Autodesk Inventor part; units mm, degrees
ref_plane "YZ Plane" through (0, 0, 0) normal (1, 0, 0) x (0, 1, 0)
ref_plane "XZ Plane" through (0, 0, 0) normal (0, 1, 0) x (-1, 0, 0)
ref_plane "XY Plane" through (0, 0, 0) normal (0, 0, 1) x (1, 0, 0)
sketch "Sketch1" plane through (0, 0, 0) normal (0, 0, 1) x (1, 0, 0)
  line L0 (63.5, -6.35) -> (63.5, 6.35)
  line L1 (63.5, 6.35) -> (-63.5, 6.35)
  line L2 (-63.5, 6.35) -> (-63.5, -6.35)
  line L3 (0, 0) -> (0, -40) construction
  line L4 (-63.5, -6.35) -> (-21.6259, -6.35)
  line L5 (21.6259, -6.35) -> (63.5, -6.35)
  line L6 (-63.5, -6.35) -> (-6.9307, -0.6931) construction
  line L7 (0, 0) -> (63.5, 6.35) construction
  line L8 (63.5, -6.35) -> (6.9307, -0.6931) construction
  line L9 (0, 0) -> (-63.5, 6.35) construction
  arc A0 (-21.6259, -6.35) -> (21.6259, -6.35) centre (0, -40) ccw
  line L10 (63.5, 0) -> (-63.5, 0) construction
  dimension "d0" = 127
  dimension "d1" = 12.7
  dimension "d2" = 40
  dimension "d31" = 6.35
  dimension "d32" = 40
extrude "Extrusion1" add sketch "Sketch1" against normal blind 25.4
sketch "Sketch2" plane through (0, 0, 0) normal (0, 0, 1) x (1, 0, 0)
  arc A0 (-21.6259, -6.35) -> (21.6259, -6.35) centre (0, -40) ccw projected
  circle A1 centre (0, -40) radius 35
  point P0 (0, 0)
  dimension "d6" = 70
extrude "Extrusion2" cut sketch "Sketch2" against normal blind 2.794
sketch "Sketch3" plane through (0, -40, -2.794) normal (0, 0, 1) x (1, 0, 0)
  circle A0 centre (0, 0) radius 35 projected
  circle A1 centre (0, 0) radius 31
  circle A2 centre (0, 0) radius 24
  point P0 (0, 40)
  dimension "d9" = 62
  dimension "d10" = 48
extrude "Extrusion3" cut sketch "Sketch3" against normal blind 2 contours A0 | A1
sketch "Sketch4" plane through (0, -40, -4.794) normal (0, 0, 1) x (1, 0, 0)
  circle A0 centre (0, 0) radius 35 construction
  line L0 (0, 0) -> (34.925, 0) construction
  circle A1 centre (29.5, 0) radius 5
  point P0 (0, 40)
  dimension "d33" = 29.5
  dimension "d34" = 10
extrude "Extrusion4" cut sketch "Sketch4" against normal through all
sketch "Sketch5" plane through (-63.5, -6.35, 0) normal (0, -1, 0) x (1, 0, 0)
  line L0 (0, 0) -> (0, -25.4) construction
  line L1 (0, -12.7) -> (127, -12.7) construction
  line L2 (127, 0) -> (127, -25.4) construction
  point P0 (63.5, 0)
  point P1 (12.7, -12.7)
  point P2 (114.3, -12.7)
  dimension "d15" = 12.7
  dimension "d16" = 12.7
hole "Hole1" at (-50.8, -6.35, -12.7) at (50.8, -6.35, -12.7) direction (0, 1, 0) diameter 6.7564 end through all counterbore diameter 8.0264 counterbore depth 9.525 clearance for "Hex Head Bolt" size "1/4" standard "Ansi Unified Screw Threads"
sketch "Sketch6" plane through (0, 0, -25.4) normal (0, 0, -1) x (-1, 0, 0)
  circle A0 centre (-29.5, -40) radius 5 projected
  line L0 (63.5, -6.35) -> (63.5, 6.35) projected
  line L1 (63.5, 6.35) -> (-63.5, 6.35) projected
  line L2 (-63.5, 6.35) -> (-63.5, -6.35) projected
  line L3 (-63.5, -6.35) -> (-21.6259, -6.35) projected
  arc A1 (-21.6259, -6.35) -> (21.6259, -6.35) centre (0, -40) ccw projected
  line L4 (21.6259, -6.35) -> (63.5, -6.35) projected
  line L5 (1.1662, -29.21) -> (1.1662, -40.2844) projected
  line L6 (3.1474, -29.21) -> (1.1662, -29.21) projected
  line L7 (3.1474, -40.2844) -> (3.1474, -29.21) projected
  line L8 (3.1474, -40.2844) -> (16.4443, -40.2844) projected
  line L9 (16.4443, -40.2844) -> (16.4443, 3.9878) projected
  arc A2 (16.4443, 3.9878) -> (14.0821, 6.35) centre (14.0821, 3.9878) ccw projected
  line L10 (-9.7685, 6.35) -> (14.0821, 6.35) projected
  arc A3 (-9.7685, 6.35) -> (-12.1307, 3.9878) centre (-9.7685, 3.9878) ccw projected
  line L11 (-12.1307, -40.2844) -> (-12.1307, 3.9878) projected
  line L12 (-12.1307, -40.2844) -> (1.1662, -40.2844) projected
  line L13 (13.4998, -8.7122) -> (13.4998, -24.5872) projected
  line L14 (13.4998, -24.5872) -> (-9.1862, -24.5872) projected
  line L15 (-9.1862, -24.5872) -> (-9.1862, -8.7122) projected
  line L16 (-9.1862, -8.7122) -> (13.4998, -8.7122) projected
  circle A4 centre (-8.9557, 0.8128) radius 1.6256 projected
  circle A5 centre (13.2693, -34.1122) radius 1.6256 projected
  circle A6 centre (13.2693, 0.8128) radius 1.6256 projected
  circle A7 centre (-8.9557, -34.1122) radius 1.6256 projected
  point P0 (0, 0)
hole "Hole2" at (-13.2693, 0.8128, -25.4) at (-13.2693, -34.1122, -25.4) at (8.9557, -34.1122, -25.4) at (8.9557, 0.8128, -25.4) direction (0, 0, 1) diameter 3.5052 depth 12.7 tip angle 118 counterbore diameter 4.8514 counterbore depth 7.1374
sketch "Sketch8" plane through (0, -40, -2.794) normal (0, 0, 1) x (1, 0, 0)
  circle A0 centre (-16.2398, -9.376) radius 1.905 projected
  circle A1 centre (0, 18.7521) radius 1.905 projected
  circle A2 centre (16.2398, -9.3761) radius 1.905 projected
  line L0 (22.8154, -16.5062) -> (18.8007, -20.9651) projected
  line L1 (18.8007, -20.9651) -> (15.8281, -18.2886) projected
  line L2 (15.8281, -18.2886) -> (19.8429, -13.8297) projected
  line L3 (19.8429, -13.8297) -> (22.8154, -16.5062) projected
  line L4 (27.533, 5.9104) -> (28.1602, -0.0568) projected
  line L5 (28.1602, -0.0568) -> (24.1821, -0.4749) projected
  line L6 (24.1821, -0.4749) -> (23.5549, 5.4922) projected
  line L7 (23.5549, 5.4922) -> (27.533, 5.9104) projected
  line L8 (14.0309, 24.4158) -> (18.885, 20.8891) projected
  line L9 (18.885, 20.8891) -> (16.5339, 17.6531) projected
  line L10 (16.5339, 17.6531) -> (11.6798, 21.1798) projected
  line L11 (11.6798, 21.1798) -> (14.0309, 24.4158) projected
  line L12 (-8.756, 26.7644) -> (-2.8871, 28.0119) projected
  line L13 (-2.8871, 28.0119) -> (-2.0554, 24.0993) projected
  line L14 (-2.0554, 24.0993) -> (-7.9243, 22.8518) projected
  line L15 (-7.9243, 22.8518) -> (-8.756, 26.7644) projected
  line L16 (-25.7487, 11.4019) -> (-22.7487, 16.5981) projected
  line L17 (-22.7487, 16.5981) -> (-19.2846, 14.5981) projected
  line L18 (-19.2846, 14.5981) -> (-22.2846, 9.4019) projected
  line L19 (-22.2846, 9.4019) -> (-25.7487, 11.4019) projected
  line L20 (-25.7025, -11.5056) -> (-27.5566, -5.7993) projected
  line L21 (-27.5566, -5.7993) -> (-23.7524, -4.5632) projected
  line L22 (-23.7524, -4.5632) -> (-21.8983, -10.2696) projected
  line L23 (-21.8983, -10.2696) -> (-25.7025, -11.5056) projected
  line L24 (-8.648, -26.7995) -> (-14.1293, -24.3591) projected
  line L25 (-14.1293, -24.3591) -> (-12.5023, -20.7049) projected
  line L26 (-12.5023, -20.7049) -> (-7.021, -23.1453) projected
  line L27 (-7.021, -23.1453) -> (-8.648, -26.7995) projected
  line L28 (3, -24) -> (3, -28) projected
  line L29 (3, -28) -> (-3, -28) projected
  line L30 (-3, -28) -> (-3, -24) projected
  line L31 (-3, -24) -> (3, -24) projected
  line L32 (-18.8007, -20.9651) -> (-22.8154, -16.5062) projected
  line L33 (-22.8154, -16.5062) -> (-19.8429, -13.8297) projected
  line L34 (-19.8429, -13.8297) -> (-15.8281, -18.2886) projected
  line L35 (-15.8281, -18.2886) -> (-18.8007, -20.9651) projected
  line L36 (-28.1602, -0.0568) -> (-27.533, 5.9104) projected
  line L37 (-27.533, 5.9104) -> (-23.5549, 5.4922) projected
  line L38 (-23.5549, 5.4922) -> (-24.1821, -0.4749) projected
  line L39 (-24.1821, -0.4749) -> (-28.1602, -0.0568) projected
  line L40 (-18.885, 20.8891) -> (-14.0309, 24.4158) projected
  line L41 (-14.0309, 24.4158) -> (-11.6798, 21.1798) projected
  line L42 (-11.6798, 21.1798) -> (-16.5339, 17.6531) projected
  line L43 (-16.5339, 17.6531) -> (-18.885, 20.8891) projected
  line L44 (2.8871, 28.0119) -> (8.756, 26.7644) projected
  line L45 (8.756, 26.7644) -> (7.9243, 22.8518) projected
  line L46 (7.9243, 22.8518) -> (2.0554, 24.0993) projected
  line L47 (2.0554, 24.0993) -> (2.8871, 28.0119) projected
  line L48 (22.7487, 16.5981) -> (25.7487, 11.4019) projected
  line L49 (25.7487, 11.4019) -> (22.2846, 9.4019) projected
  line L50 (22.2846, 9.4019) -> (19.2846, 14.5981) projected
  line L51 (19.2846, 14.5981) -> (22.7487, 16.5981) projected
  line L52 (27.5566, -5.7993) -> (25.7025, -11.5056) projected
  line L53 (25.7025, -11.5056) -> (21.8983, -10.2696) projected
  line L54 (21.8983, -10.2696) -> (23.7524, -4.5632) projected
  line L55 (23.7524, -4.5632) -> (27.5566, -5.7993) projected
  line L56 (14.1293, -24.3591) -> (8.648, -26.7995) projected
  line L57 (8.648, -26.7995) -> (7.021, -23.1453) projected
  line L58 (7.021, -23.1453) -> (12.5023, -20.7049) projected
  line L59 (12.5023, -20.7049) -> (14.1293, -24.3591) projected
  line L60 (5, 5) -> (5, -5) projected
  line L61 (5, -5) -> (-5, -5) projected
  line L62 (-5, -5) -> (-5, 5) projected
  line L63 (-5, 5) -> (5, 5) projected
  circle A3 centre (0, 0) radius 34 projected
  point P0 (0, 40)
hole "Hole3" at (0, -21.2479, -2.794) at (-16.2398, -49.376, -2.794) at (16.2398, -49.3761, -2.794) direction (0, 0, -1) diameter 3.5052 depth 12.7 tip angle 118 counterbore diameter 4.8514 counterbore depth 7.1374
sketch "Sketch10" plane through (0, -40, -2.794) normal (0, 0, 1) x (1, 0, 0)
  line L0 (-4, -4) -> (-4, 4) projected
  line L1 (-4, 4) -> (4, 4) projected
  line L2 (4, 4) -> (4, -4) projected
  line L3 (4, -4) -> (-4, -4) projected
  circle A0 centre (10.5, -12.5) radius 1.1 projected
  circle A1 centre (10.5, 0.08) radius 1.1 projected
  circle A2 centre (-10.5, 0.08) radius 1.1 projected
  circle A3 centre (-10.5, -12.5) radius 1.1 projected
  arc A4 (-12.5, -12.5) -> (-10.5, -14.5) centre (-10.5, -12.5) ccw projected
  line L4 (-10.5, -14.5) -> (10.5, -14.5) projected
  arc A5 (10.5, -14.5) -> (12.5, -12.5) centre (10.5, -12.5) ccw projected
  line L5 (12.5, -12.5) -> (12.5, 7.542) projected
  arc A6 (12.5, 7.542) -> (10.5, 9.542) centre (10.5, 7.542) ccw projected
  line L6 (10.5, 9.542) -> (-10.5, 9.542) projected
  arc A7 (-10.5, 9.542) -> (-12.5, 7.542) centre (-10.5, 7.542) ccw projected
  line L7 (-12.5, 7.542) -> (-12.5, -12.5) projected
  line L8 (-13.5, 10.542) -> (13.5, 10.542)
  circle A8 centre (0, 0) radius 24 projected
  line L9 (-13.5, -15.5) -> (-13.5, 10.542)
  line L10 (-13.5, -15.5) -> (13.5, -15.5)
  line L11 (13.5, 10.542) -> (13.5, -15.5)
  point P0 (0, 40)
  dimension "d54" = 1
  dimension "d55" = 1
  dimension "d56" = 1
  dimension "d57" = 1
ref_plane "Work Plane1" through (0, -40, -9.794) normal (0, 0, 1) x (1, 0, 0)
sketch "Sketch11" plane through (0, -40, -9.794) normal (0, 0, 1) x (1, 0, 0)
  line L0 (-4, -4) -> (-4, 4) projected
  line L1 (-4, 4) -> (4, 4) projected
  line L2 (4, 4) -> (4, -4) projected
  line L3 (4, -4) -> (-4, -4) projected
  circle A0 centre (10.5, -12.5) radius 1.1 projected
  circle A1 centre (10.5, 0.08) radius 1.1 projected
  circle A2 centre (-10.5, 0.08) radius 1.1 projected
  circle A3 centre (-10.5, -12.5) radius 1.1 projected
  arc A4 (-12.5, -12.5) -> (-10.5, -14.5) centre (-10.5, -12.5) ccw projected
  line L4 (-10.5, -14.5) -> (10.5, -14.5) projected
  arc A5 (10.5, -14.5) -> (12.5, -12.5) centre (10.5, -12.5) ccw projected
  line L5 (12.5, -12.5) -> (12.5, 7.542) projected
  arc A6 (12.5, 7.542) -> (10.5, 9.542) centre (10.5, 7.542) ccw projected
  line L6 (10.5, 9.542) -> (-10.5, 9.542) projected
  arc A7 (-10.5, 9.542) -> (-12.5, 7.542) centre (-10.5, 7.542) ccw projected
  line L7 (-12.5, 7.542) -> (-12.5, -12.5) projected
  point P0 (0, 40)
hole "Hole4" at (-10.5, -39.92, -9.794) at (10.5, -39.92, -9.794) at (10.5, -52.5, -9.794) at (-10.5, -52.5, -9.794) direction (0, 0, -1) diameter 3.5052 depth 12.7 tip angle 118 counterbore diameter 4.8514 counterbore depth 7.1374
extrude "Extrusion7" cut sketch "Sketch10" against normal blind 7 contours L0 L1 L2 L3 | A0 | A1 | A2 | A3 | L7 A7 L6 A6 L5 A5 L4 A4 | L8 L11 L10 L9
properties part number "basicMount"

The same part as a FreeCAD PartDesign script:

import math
import FreeCAD as App
import Part
import Sketcher
from FreeCAD import Vector
Q = App.Units.Quantity

doc = App.newDocument("Part")
body = doc.addObject("PartDesign::Body", "Body")

sketch1 = body.newObject("Sketcher::SketchObject", "Sketch")
sketch1.AttachmentSupport = (doc.getObject("XY_Plane"), [""])
sketch1.MapMode = "FlatFace"
sketch1.addGeometry([
    Part.LineSegment(Vector(22, -6, 0), Vector(64, -6, 0)),
    Part.LineSegment(Vector(64, -6, 0), Vector(64, 6, 0)),
    Part.LineSegment(Vector(64, 6, 0), Vector(-64, 6, 0)),
    Part.LineSegment(Vector(-64, 6, 0), Vector(-64, -6, 0)),
    Part.LineSegment(Vector(-64, -6, 0), Vector(-22, -6, 0)),
    Part.ArcOfCircle(Part.Circle(Vector(0, -40, 0), Vector(0, 0, 1), 40), math.radians(123), math.radians(417)),
], False)
sketch1.addConstraint([
    Sketcher.Constraint("Coincident", 0, 2, 1, 1),
    Sketcher.Constraint("Coincident", 1, 2, 2, 1),
    Sketcher.Constraint("Coincident", 2, 2, 3, 1),
    Sketcher.Constraint("Coincident", 3, 2, 4, 1),
    Sketcher.Constraint("Coincident", 4, 2, 5, 1),
    Sketcher.Constraint("Coincident", 5, 2, 0, 1),
    Sketcher.Constraint("Horizontal", 0),
    Sketcher.Constraint("Vertical", 1),
    Sketcher.Constraint("Horizontal", 2),
    Sketcher.Constraint("Vertical", 3),
    Sketcher.Constraint("Horizontal", 4),
    Sketcher.Constraint("Symmetric", 0, 2, 2, 2, -1, 1),
    Sketcher.Constraint("Symmetric", 4, 2, 5, 2, -2),
    Sketcher.Constraint("DistanceX", 2, 2, 2, 1, Q("5 in")),
    Sketcher.Constraint("DistanceY", 1, 1, 1, 2, Q("0.5 in")),
    Sketcher.Constraint("Radius", 5, Q("1.5748 in")),
    Sketcher.Constraint("DistanceY", 5, 3, -1, 1, Q("1.5748 in")),
])
pad1 = body.newObject("PartDesign::Pad", "Pad")
pad1.Profile = sketch1
pad1.Length = Q("1 in")
pad1.Reversed = True

sketch2 = body.newObject("Sketcher::SketchObject", "Sketch001")
sketch2.AttachmentSupport = (doc.getObject("XY_Plane"), [""])
sketch2.MapMode = "FlatFace"
sketch2.addGeometry(Part.Circle(Vector(0, -40, 0), Vector(0, 0, 1), 35), False)
sketch2.addConstraint([
    Sketcher.Constraint("PointOnObject", 0, 3, -2),
    Sketcher.Constraint("Diameter", 0, Q("2.7559 in")),
    Sketcher.Constraint("DistanceY", 0, 3, -1, 1, Q("1.5748 in")),
])
pocket1 = body.newObject("PartDesign::Pocket", "Pocket")
pocket1.Profile = sketch2
pocket1.Length = Q("0.11 in")

sketch3 = body.newObject("Sketcher::SketchObject", "Sketch002")
sketch3.AttachmentSupport = (doc.getObject("XY_Plane"), [""])
sketch3.MapMode = "FlatFace"
sketch3.AttachmentOffset = App.Placement(Vector(0, 0, -0.11 * 25.4), App.Rotation())
sketch3.addGeometry([
    Part.Circle(Vector(0, -40, 0), Vector(0, 0, 1), 35),
    Part.Circle(Vector(0, -40, 0), Vector(0, 0, 1), 24),
], False)
sketch3.addConstraint([
    Sketcher.Constraint("Coincident", 1, 3, 0, 3),
    Sketcher.Constraint("PointOnObject", 0, 3, -2),
    Sketcher.Constraint("Diameter", 1, 48.0),
    Sketcher.Constraint("Diameter", 0, Q("2.7559 in")),
    Sketcher.Constraint("DistanceY", 0, 3, -1, 1, Q("1.5748 in")),
])
pocket2 = body.newObject("PartDesign::Pocket", "Pocket001")
pocket2.Profile = sketch3
pocket2.Length = 2

sketch4 = body.newObject("Sketcher::SketchObject", "Sketch003")
sketch4.AttachmentSupport = (doc.getObject("XY_Plane"), [""])
sketch4.MapMode = "FlatFace"
sketch4.AttachmentOffset = App.Placement(Vector(0, 0, -4.794), App.Rotation())
sketch4.addGeometry(Part.Circle(Vector(30, -40, 0), Vector(0, 0, 1), 5), False)
sketch4.addConstraint([
    Sketcher.Constraint("Diameter", 0, Q("0.3937 in")),
    Sketcher.Constraint("DistanceX", -1, 1, 0, 3, 29.5),
    Sketcher.Constraint("DistanceY", 0, 3, -1, 1, Q("1.5748 in")),
])
pocket3 = body.newObject("PartDesign::Pocket", "Pocket002")
pocket3.Profile = sketch4
pocket3.Type = "ThroughAll"

sketch5 = body.newObject("Sketcher::SketchObject", "Sketch004")
sketch5.AttachmentSupport = (doc.getObject("XZ_Plane"), [""])
sketch5.MapMode = "FlatFace"
sketch5.AttachmentOffset = App.Placement(Vector(0, 0, 0.25 * 25.4), App.Rotation())
sketch5.addGeometry([
    Part.Circle(Vector(-50.8, -12.7, 0), Vector(0, 0, 1), 3.4),
    Part.Circle(Vector(50.8, -12.7, 0), Vector(0, 0, 1), 3.4),
], False)
sketch5.addConstraint([
    Sketcher.Constraint("Equal", 0, 1),
    Sketcher.Constraint("Symmetric", 0, 3, 1, 3, -2),
    Sketcher.Constraint("Diameter", 0, Q("0.266 in")),
    Sketcher.Constraint("DistanceX", 0, 3, -1, 1, Q("2 in")),
    Sketcher.Constraint("DistanceY", 0, 3, -1, 1, Q("0.5 in")),
])
doc.recompute()
hole = body.newObject("PartDesign::Hole", "Hole")
hole.Profile = sketch5
hole.ThreadType = "None"
hole.Diameter = Q("0.266 in")
hole.DepthType = "ThroughAll"
hole.HoleCutType = "Counterbore"
hole.HoleCutDiameter = Q("0.316 in")
hole.HoleCutDepth = Q("0.375 in")

sketch6 = body.newObject("Sketcher::SketchObject", "Sketch005")
sketch6.AttachmentSupport = (doc.getObject("XY_Plane"), [""])
sketch6.MapMode = "FlatFace"
sketch6.AttachmentOffset = App.Placement(Vector(0, 0, -1 * 25.4), App.Rotation())
sketch6.addGeometry([
    Part.Circle(Vector(-13.3, 0.8, 0), Vector(0, 0, 1), 1.8),
    Part.Circle(Vector(-13.3, -34.1, 0), Vector(0, 0, 1), 1.8),
    Part.Circle(Vector(9, -34.1, 0), Vector(0, 0, 1), 1.8),
    Part.Circle(Vector(9, 0.8, 0), Vector(0, 0, 1), 1.8),
], False)
sketch6.addConstraint([
    Sketcher.Constraint("Equal", 0, 1),
    Sketcher.Constraint("Equal", 1, 2),
    Sketcher.Constraint("Equal", 2, 3),
    Sketcher.Constraint("Horizontal", 1, 3, 2, 3),
    Sketcher.Constraint("Horizontal", 0, 3, 3, 3),
    Sketcher.Constraint("Vertical", 0, 3, 1, 3),
    Sketcher.Constraint("Vertical", 2, 3, 3, 3),
    Sketcher.Constraint("Diameter", 0, Q("0.138 in")),
    Sketcher.Constraint("DistanceY", -1, 1, 0, 3, Q("0.032 in")),
    Sketcher.Constraint("DistanceY", 1, 3, -1, 1, Q("1.343 in")),
    Sketcher.Constraint("DistanceX", 1, 3, 2, 3, Q("0.875 in")),
    Sketcher.Constraint("DistanceX", 0, 3, -1, 1, 13.2693),
])
doc.recompute()
hole2 = body.newObject("PartDesign::Hole", "Hole001")
hole2.Profile = sketch6
hole2.ThreadType = "None"
hole2.Diameter = Q("0.138 in")
hole2.DepthType = "Dimension"
hole2.Depth = Q("0.5 in")
hole2.DrillPoint = "Angled"
hole2.DrillPointAngle = 118
hole2.HoleCutType = "Counterbore"
hole2.HoleCutDiameter = Q("0.191 in")
hole2.HoleCutDepth = Q("0.281 in")
hole2.Reversed = True

sketch7 = body.newObject("Sketcher::SketchObject", "Sketch006")
sketch7.AttachmentSupport = (doc.getObject("XY_Plane"), [""])
sketch7.MapMode = "FlatFace"
sketch7.AttachmentOffset = App.Placement(Vector(0, 0, -0.11 * 25.4), App.Rotation())
sketch7.addGeometry([
    Part.Circle(Vector(0, -21.2, 0), Vector(0, 0, 1), 1.8),
    Part.Circle(Vector(-16.2, -49.4, 0), Vector(0, 0, 1), 1.8),
    Part.Circle(Vector(16.2, -49.4, 0), Vector(0, 0, 1), 1.8),
], False)
sketch7.addConstraint([
    Sketcher.Constraint("Equal", 0, 1),
    Sketcher.Constraint("Equal", 1, 2),
    Sketcher.Constraint("Symmetric", 1, 3, 2, 3, -2),
    Sketcher.Constraint("PointOnObject", 0, 3, -2),
    Sketcher.Constraint("Diameter", 0, Q("0.138 in")),
    Sketcher.Constraint("DistanceY", 1, 3, 0, 3, Q("1.1074 in")),
    Sketcher.Constraint("DistanceY", 0, 3, -1, 1, 21.248),
    Sketcher.Constraint("DistanceX", 1, 3, -1, 1, 16.2398),
])
doc.recompute()
hole3 = body.newObject("PartDesign::Hole", "Hole002")
hole3.Profile = sketch7
hole3.ThreadType = "None"
hole3.Diameter = Q("0.138 in")
hole3.DepthType = "Dimension"
hole3.Depth = Q("0.5 in")
hole3.DrillPoint = "Angled"
hole3.DrillPointAngle = 118
hole3.HoleCutType = "Counterbore"
hole3.HoleCutDiameter = Q("0.191 in")
hole3.HoleCutDepth = Q("0.281 in")

sketch8 = body.newObject("Sketcher::SketchObject", "Sketch007")
sketch8.AttachmentSupport = (doc.getObject("XY_Plane"), [""])
sketch8.MapMode = "FlatFace"
sketch8.AttachmentOffset = App.Placement(Vector(0, 0, -0.3855906 * 25.4), App.Rotation())
sketch8.addGeometry([
    Part.Circle(Vector(-10.5, -39.9, 0), Vector(0, 0, 1), 1.8),
    Part.Circle(Vector(10.5, -39.9, 0), Vector(0, 0, 1), 1.8),
    Part.Circle(Vector(10.5, -52.5, 0), Vector(0, 0, 1), 1.8),
    Part.Circle(Vector(-10.5, -52.5, 0), Vector(0, 0, 1), 1.8),
], False)
sketch8.addConstraint([
    Sketcher.Constraint("Equal", 0, 1),
    Sketcher.Constraint("Equal", 1, 2),
    Sketcher.Constraint("Equal", 2, 3),
    Sketcher.Constraint("Symmetric", 0, 3, 1, 3, -2),
    Sketcher.Constraint("Symmetric", 2, 3, 3, 3, -2),
    Sketcher.Constraint("Vertical", 1, 3, 2, 3),
    Sketcher.Constraint("Diameter", 0, Q("0.138 in")),
    Sketcher.Constraint("DistanceX", 0, 3, -1, 1, 10.5),
    Sketcher.Constraint("DistanceY", 0, 3, -1, 1, 39.92),
    Sketcher.Constraint("DistanceY", 2, 3, -1, 1, 52.5),
])
doc.recompute()
hole4 = body.newObject("PartDesign::Hole", "Hole003")
hole4.Profile = sketch8
hole4.ThreadType = "None"
hole4.Diameter = Q("0.138 in")
hole4.DepthType = "Dimension"
hole4.Depth = Q("0.5 in")
hole4.DrillPoint = "Angled"
hole4.DrillPointAngle = 118
hole4.HoleCutType = "Counterbore"
hole4.HoleCutDiameter = Q("0.191 in")
hole4.HoleCutDepth = Q("0.281 in")

sketch9 = body.newObject("Sketcher::SketchObject", "Sketch008")
sketch9.AttachmentSupport = (doc.getObject("XY_Plane"), [""])
sketch9.MapMode = "FlatFace"
sketch9.AttachmentOffset = App.Placement(Vector(0, 0, -0.11 * 25.4), App.Rotation())
sketch9.addGeometry([
    Part.LineSegment(Vector(14, -29, 0), Vector(-14, -29, 0)),
    Part.LineSegment(Vector(-14, -29, 0), Vector(-14, -56, 0)),
    Part.LineSegment(Vector(-14, -56, 0), Vector(14, -56, 0)),
    Part.LineSegment(Vector(14, -56, 0), Vector(14, -29, 0)),
], False)
sketch9.addConstraint([
    Sketcher.Constraint("Coincident", 0, 2, 1, 1),
    Sketcher.Constraint("Coincident", 1, 2, 2, 1),
    Sketcher.Constraint("Coincident", 2, 2, 3, 1),
    Sketcher.Constraint("Coincident", 3, 2, 0, 1),
    Sketcher.Constraint("Horizontal", 0),
    Sketcher.Constraint("Vertical", 1),
    Sketcher.Constraint("Horizontal", 2),
    Sketcher.Constraint("Vertical", 3),
    Sketcher.Constraint("DistanceX", 0, 2, 0, 1, Q("1.063 in")),
    Sketcher.Constraint("DistanceY", 1, 2, 1, 1, 26.042),
    Sketcher.Constraint("DistanceX", 0, 2, -1, 1, Q("0.5315 in")),
    Sketcher.Constraint("DistanceY", 0, 2, -1, 1, 29.458),
])
pocket4 = body.newObject("PartDesign::Pocket", "Pocket003")
pocket4.Profile = sketch9
pocket4.Length = Q("0.2755906 in")

doc.recompute()
